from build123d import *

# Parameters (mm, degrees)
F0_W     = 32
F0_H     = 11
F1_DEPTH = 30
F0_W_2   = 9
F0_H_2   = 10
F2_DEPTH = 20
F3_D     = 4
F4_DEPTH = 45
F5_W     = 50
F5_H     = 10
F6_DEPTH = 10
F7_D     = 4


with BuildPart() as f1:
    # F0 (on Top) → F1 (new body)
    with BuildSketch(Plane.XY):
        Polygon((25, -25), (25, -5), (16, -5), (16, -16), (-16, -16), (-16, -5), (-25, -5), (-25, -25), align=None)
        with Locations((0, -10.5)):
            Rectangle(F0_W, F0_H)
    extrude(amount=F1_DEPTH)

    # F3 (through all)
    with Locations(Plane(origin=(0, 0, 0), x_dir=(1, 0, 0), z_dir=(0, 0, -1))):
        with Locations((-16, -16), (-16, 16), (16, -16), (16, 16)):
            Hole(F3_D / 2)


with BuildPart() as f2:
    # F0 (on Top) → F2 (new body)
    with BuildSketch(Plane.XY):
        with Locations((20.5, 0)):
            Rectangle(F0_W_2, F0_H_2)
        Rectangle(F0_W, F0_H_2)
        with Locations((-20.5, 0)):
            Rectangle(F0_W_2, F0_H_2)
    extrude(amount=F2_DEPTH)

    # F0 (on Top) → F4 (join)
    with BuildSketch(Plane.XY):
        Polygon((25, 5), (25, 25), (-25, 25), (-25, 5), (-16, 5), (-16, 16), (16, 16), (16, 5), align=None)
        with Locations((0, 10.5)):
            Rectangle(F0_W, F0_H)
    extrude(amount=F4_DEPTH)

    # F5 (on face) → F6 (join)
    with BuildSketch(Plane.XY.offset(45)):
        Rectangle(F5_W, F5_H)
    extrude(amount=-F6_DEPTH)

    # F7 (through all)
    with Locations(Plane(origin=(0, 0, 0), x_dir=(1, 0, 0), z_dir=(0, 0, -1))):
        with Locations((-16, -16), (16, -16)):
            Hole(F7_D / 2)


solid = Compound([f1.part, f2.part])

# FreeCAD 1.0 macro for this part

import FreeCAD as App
import Part
import Sketcher

V = App.Vector

doc = App.newDocument("Part")
body = doc.addObject("PartDesign::Body", "Body")

# Sketch on XY plane
sketch1 = body.newObject("Sketcher::SketchObject", "Sketch")
sketch1.AttachmentSupport = (doc.getObject("XY_Plane"), [""])
sketch1.MapMode = "FlatFace"
sketch1.addGeometry(Part.LineSegment(V(25, -25, 0), V(25, -5, 0)), False)
sketch1.addGeometry(Part.LineSegment(V(25, -5, 0), V(-25, -5, 0)), False)
sketch1.addGeometry(Part.LineSegment(V(-25, -5, 0), V(-25, -25, 0)), False)
sketch1.addGeometry(Part.LineSegment(V(-25, -25, 0), V(25, -25, 0)), False)
sketch1.addConstraint(Sketcher.Constraint("Coincident", 0, 2, 1, 1))
sketch1.addConstraint(Sketcher.Constraint("Coincident", 1, 2, 2, 1))
sketch1.addConstraint(Sketcher.Constraint("Coincident", 2, 2, 3, 1))
sketch1.addConstraint(Sketcher.Constraint("Coincident", 3, 2, 0, 1))
sketch1.addConstraint(Sketcher.Constraint("Vertical", 0))
sketch1.addConstraint(Sketcher.Constraint("Horizontal", 1))
sketch1.addConstraint(Sketcher.Constraint("Vertical", 2))
sketch1.addConstraint(Sketcher.Constraint("Horizontal", 3))
sketch1.addConstraint(Sketcher.Constraint("DistanceX", 1, 2, 1, 1, 50.0))
sketch1.addConstraint(Sketcher.Constraint("DistanceY", 0, 1, 0, 2, 20.0))
sketch1.addConstraint(Sketcher.Constraint("DistanceX", -1, 1, 0, 2, 25.0))
sketch1.addConstraint(Sketcher.Constraint("DistanceY", 0, 2, -1, 1, 5.0))
pad1 = body.newObject("PartDesign::Pad", "Pad")
pad1.Profile = sketch1
pad1.Length = 30

# Sketch on XY plane
sketch2 = body.newObject("Sketcher::SketchObject", "Sketch001")
sketch2.AttachmentSupport = (doc.getObject("XY_Plane"), [""])
sketch2.MapMode = "FlatFace"
sketch2.addGeometry(Part.Circle(V(-16, 16, 0), V(0, 0, 1), 2), False)
sketch2.addGeometry(Part.Circle(V(-16, -16, 0), V(0, 0, 1), 2), False)
sketch2.addGeometry(Part.Circle(V(16, 16, 0), V(0, 0, 1), 2), False)
sketch2.addGeometry(Part.Circle(V(16, -16, 0), V(0, 0, 1), 2), False)
sketch2.addConstraint(Sketcher.Constraint("Equal", 0, 1))
sketch2.addConstraint(Sketcher.Constraint("Equal", 1, 2))
sketch2.addConstraint(Sketcher.Constraint("Equal", 2, 3))
sketch2.addConstraint(Sketcher.Constraint("Symmetric", 1, 3, 2, 3, -1, 1))
sketch2.addConstraint(Sketcher.Constraint("Symmetric", 0, 3, 3, 3, -1, 1))
sketch2.addConstraint(Sketcher.Constraint("Symmetric", 0, 3, 2, 3, -2))
sketch2.addConstraint(Sketcher.Constraint("Diameter", 0, 4.0))
sketch2.addConstraint(Sketcher.Constraint("DistanceX", 0, 3, -1, 1, 16.0))
sketch2.addConstraint(Sketcher.Constraint("DistanceY", -1, 1, 0, 3, 16.0))
doc.recompute()
hole = body.newObject("PartDesign::Hole", "Hole")
hole.Profile = sketch2
hole.ThreadType = "None"
hole.Diameter = 4
hole.DepthType = "ThroughAll"
hole.Reversed = True
body2 = doc.addObject("PartDesign::Body", "Body001")

# Sketch on XY plane
sketch3 = body2.newObject("Sketcher::SketchObject", "Sketch002")
sketch3.AttachmentSupport = (doc.getObject("XY_Plane001"), [""])
sketch3.MapMode = "FlatFace"
sketch3.addGeometry(Part.LineSegment(V(25, -5, 0), V(25, 5, 0)), False)
sketch3.addGeometry(Part.LineSegment(V(25, 5, 0), V(-25, 5, 0)), False)
sketch3.addGeometry(Part.LineSegment(V(-25, 5, 0), V(-25, -5, 0)), False)
sketch3.addGeometry(Part.LineSegment(V(-25, -5, 0), V(25, -5, 0)), False)
sketch3.addConstraint(Sketcher.Constraint("Coincident", 0, 2, 1, 1))
sketch3.addConstraint(Sketcher.Constraint("Coincident", 1, 2, 2, 1))
sketch3.addConstraint(Sketcher.Constraint("Coincident", 2, 2, 3, 1))
sketch3.addConstraint(Sketcher.Constraint("Coincident", 3, 2, 0, 1))
sketch3.addConstraint(Sketcher.Constraint("Vertical", 0))
sketch3.addConstraint(Sketcher.Constraint("Horizontal", 1))
sketch3.addConstraint(Sketcher.Constraint("Vertical", 2))
sketch3.addConstraint(Sketcher.Constraint("Horizontal", 3))
sketch3.addConstraint(Sketcher.Constraint("Symmetric", 0, 2, 2, 2, -1, 1))
sketch3.addConstraint(Sketcher.Constraint("DistanceX", 1, 2, 1, 1, 50.0))
sketch3.addConstraint(Sketcher.Constraint("DistanceY", 0, 1, 0, 2, 10.0))
pad2 = body2.newObject("PartDesign::Pad", "Pad001")
pad2.Profile = sketch3
pad2.Length = 20

# Sketch on XY plane
sketch4 = body2.newObject("Sketcher::SketchObject", "Sketch003")
sketch4.AttachmentSupport = (doc.getObject("XY_Plane001"), [""])
sketch4.MapMode = "FlatFace"
sketch4.addGeometry(Part.LineSegment(V(25, 5, 0), V(25, 25, 0)), False)
sketch4.addGeometry(Part.LineSegment(V(25, 25, 0), V(-25, 25, 0)), False)
sketch4.addGeometry(Part.LineSegment(V(-25, 25, 0), V(-25, 5, 0)), False)
sketch4.addGeometry(Part.LineSegment(V(-25, 5, 0), V(25, 5, 0)), False)
sketch4.addConstraint(Sketcher.Constraint("Coincident", 0, 2, 1, 1))
sketch4.addConstraint(Sketcher.Constraint("Coincident", 1, 2, 2, 1))
sketch4.addConstraint(Sketcher.Constraint("Coincident", 2, 2, 3, 1))
sketch4.addConstraint(Sketcher.Constraint("Coincident", 3, 2, 0, 1))
sketch4.addConstraint(Sketcher.Constraint("Vertical", 0))
sketch4.addConstraint(Sketcher.Constraint("Horizontal", 1))
sketch4.addConstraint(Sketcher.Constraint("Vertical", 2))
sketch4.addConstraint(Sketcher.Constraint("Horizontal", 3))
sketch4.addConstraint(Sketcher.Constraint("DistanceX", 1, 2, 1, 1, 50.0))
sketch4.addConstraint(Sketcher.Constraint("DistanceY", 0, 1, 0, 2, 20.0))
sketch4.addConstraint(Sketcher.Constraint("DistanceX", -1, 1, 0, 2, 25.0))
sketch4.addConstraint(Sketcher.Constraint("DistanceY", -1, 1, 0, 2, 25.0))
pad3 = body2.newObject("PartDesign::Pad", "Pad002")
pad3.Profile = sketch4
pad3.Length = 45

# Sketch on XY plane
sketch5 = body2.newObject("Sketcher::SketchObject", "Sketch004")
sketch5.AttachmentSupport = (doc.getObject("XY_Plane001"), [""])
sketch5.MapMode = "FlatFace"
sketch5.AttachmentOffset = App.Placement(V(0, 0, 45), App.Rotation())
sketch5.addGeometry(Part.LineSegment(V(-25, 5, 0), V(-25, -5, 0)), False)
sketch5.addGeometry(Part.LineSegment(V(-25, -5, 0), V(25, -5, 0)), False)
sketch5.addGeometry(Part.LineSegment(V(25, -5, 0), V(25, 5, 0)), False)
sketch5.addGeometry(Part.LineSegment(V(25, 5, 0), V(-25, 5, 0)), False)
sketch5.addConstraint(Sketcher.Constraint("Coincident", 0, 2, 1, 1))
sketch5.addConstraint(Sketcher.Constraint("Coincident", 1, 2, 2, 1))
sketch5.addConstraint(Sketcher.Constraint("Coincident", 2, 2, 3, 1))
sketch5.addConstraint(Sketcher.Constraint("Coincident", 3, 2, 0, 1))
sketch5.addConstraint(Sketcher.Constraint("Vertical", 0))
sketch5.addConstraint(Sketcher.Constraint("Horizontal", 1))
sketch5.addConstraint(Sketcher.Constraint("Vertical", 2))
sketch5.addConstraint(Sketcher.Constraint("Horizontal", 3))
sketch5.addConstraint(Sketcher.Constraint("Symmetric", 0, 2, 2, 2, -1, 1))
sketch5.addConstraint(Sketcher.Constraint("DistanceX", 1, 1, 1, 2, 50.0))
sketch5.addConstraint(Sketcher.Constraint("DistanceY", 0, 2, 0, 1, 10.0))
pad4 = body2.newObject("PartDesign::Pad", "Pad003")
pad4.Profile = sketch5
pad4.Length = 10
pad4.Reversed = True

# Sketch on XY plane
sketch6 = body2.newObject("Sketcher::SketchObject", "Sketch005")
sketch6.AttachmentSupport = (doc.getObject("XY_Plane001"), [""])
sketch6.MapMode = "FlatFace"
sketch6.addGeometry(Part.Circle(V(-16, 16, 0), V(0, 0, 1), 2), False)
sketch6.addGeometry(Part.Circle(V(16, 16, 0), V(0, 0, 1), 2), False)
sketch6.addConstraint(Sketcher.Constraint("Equal", 0, 1))
sketch6.addConstraint(Sketcher.Constraint("Symmetric", 0, 3, 1, 3, -2))
sketch6.addConstraint(Sketcher.Constraint("Diameter", 0, 4.0))
sketch6.addConstraint(Sketcher.Constraint("DistanceX", 0, 3, -1, 1, 16.0))
sketch6.addConstraint(Sketcher.Constraint("DistanceY", -1, 1, 0, 3, 16.0))
doc.recompute()
hole2 = body2.newObject("PartDesign::Hole", "Hole001")
hole2.Profile = sketch6
hole2.ThreadType = "None"
hole2.Diameter = 4
hole2.DepthType = "ThroughAll"
hole2.Reversed = True

doc.recompute()
